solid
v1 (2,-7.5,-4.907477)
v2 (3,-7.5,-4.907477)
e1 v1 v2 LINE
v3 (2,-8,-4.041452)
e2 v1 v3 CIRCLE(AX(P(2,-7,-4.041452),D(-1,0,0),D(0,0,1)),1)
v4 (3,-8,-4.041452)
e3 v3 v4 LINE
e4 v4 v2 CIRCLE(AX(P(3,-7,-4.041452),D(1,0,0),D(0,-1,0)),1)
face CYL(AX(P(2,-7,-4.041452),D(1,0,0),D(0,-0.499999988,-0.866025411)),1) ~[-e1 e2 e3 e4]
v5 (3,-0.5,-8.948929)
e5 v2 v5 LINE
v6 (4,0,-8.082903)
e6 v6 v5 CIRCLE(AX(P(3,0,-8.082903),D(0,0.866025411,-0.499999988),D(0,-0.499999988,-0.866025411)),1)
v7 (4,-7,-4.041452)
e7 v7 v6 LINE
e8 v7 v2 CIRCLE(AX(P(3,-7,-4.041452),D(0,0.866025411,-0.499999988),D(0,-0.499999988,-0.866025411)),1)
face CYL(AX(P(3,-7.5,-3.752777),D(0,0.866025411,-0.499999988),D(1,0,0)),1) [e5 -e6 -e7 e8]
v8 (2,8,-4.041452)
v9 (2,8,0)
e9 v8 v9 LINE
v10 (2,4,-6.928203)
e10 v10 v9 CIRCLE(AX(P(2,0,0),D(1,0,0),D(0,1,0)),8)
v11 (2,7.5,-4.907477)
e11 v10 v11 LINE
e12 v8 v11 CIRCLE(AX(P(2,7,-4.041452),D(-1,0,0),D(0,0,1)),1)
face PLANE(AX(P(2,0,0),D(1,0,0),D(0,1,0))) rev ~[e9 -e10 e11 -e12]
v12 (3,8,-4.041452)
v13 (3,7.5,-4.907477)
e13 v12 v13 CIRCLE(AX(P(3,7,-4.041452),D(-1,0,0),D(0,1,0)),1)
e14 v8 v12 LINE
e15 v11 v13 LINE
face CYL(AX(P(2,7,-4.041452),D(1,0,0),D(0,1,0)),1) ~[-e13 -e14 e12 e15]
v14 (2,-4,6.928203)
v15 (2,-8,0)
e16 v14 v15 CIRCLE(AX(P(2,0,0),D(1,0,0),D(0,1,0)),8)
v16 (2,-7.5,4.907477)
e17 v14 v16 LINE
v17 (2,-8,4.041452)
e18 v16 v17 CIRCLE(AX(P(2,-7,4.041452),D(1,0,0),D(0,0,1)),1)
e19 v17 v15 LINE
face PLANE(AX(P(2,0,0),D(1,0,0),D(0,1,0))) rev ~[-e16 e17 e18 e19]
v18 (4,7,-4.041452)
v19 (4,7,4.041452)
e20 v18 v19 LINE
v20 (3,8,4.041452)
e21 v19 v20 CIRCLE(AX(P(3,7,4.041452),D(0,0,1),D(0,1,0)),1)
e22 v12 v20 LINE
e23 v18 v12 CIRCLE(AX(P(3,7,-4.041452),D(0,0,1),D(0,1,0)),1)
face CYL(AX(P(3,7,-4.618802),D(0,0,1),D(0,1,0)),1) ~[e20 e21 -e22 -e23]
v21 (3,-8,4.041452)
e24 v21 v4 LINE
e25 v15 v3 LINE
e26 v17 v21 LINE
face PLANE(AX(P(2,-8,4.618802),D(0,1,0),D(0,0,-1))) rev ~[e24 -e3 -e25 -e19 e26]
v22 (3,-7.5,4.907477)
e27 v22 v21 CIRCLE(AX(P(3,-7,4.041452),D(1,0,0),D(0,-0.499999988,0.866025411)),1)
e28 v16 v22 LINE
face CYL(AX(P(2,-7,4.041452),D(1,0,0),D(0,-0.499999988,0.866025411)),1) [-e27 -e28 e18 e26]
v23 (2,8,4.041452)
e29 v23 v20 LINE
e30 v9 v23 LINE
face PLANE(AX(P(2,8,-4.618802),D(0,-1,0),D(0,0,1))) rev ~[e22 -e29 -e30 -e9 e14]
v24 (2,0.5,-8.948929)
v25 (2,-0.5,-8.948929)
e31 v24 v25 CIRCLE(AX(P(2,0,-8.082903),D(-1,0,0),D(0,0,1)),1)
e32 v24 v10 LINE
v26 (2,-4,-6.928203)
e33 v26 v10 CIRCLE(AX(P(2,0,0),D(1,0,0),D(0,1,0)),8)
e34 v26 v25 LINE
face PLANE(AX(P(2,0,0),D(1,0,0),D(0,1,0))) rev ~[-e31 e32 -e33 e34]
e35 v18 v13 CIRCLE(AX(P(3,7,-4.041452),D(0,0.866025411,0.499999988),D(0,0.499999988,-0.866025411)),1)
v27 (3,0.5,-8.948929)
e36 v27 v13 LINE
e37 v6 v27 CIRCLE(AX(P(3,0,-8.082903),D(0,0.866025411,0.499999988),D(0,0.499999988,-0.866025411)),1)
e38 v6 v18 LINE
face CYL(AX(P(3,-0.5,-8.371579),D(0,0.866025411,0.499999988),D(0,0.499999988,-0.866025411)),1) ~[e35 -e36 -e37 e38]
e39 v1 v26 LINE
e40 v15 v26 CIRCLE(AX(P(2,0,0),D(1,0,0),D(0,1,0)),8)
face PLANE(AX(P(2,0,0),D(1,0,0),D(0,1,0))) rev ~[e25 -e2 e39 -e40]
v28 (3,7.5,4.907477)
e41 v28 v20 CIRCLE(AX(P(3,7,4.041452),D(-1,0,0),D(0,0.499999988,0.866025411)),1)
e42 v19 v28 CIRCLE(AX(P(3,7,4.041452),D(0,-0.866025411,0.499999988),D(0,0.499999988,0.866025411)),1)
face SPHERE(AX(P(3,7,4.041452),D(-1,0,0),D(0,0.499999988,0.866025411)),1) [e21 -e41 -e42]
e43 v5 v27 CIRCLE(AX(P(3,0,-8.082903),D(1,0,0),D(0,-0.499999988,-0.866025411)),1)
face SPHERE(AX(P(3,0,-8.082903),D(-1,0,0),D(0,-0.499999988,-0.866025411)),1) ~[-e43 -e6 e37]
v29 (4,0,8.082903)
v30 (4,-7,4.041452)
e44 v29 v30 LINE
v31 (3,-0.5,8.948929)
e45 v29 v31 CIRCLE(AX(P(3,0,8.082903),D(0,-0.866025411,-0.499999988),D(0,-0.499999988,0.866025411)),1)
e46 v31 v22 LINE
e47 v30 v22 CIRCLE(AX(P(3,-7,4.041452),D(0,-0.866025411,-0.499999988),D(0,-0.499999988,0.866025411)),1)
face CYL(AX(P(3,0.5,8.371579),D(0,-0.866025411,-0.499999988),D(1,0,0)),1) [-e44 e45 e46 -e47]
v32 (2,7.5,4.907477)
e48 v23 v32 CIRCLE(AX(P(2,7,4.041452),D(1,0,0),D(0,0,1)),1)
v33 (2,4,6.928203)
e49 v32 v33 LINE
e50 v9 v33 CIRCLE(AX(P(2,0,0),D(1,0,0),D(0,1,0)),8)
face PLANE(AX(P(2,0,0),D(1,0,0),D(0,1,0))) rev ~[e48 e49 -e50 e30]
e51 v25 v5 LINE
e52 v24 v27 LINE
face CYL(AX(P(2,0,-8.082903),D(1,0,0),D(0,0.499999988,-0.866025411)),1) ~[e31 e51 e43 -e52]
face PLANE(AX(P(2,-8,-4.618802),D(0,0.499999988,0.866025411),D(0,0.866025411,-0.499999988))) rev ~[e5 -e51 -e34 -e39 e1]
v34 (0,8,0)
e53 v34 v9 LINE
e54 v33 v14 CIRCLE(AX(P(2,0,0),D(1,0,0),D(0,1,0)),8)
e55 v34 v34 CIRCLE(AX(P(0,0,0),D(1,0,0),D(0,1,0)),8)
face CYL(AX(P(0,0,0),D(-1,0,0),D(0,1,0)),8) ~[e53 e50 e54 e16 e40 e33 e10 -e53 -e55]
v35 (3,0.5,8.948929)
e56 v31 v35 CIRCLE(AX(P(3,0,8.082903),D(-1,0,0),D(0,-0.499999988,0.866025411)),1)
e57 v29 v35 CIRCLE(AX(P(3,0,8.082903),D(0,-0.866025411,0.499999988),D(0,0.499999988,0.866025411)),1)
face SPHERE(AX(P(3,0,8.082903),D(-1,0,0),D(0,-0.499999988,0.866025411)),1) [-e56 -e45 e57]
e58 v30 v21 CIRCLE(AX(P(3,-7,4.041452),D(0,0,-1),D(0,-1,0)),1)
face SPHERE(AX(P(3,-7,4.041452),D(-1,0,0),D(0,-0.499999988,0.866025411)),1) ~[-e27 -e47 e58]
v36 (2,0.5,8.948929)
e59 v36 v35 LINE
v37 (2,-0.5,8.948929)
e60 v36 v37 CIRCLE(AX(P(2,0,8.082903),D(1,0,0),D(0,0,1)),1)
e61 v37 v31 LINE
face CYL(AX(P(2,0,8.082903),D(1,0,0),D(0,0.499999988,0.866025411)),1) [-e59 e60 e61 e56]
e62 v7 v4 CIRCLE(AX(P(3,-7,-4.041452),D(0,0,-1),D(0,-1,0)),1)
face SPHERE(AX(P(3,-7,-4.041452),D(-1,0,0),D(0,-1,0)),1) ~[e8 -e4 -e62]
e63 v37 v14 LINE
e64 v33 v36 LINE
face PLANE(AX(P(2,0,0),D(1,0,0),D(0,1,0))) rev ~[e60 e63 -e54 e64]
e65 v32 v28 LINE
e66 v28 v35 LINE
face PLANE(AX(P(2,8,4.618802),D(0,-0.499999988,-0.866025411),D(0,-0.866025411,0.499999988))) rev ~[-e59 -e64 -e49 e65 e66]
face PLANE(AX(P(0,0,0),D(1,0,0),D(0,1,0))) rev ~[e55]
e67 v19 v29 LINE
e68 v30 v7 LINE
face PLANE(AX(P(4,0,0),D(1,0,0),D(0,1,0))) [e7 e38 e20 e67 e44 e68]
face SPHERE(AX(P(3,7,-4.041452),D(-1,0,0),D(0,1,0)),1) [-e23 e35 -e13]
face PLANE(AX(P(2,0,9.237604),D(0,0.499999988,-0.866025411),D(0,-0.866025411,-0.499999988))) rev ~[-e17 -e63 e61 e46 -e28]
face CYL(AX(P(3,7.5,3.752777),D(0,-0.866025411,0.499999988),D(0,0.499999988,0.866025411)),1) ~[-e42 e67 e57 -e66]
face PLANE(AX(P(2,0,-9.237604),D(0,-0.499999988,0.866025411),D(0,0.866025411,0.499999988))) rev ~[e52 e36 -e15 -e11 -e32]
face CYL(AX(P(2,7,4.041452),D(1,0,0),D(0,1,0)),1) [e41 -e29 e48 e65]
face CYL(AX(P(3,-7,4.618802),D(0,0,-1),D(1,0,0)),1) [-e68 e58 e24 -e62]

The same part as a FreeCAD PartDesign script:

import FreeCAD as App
import Part
import Sketcher
Q = App.Units.Quantity


def edges_at(feature, points):
    """Names of the edges that pass closest to the given points."""
    edges = feature.Shape.Edges
    near = lambda p: min(range(len(edges)), key=lambda i: edges[i].distToShape(Part.Vertex(*p))[0])
    return sorted({f"Edge{near(p) + 1}" for p in points})

doc = App.newDocument("Part")
params = doc.addObject("Spreadsheet::Sheet", "Params")
for row, (alias, value) in enumerate([
    ("sketch1_diameter", "16 mm"),
    ("pad1_length", "2 mm"),
    ("pad2_length", "2 mm"),
    ("fillet_radius", "1 mm"),
], start=1):
    params.set(f"A{row}", alias)
    params.set(f"B{row}", "=" + value)
    params.setAlias(f"B{row}", alias)

body = doc.addObject("PartDesign::Body", "Body")

sketch1 = body.newObject("Sketcher::SketchObject", "Sketch")
sketch1.AttachmentSupport = (doc.getObject("YZ_Plane"), [""])
sketch1.MapMode = "FlatFace"
sketch1.addGeometry(Part.Circle(App.Vector(0, 0, 0), App.Vector(0, 0, 1), 8), False)
sketch1.addConstraint([
    Sketcher.Constraint("Coincident", 0, 3, -1, 1),
    Sketcher.Constraint("Diameter", 0, 16.0),
])
sketch1.setExpression("Constraints[1]", "Params.sketch1_diameter")
pad1 = body.newObject("PartDesign::Pad", "Pad")
pad1.Profile = sketch1
pad1.setExpression("Length", "Params.pad1_length")

sketch2 = body.newObject("Sketcher::SketchObject", "Sketch001")
sketch2.AttachmentSupport = (doc.getObject("YZ_Plane"), [""])
sketch2.MapMode = "FlatFace"
sketch2.AttachmentOffset = App.Placement(App.Vector(0, 0, 2), App.Rotation())
sketch2.addGeometry([
    Part.LineSegment(App.Vector(8, -5, 0), App.Vector(8, 5, 0)),
    Part.LineSegment(App.Vector(8, 5, 0), App.Vector(0, 9, 0)),
    Part.LineSegment(App.Vector(0, 9, 0), App.Vector(-8, 5, 0)),
    Part.LineSegment(App.Vector(-8, 5, 0), App.Vector(-8, -5, 0)),
    Part.LineSegment(App.Vector(-8, -5, 0), App.Vector(0, -9, 0)),
    Part.LineSegment(App.Vector(0, -9, 0), App.Vector(8, -5, 0)),
], False)
sketch2.addConstraint([
    Sketcher.Constraint("Coincident", 0, 2, 1, 1),
    Sketcher.Constraint("Coincident", 1, 2, 2, 1),
    Sketcher.Constraint("Coincident", 2, 2, 3, 1),
    Sketcher.Constraint("Coincident", 3, 2, 4, 1),
    Sketcher.Constraint("Coincident", 4, 2, 5, 1),
    Sketcher.Constraint("Coincident", 5, 2, 0, 1),
    Sketcher.Constraint("Vertical", 0),
    Sketcher.Constraint("Vertical", 3),
    Sketcher.Constraint("Symmetric", 0, 2, 3, 2, -1, 1),
    Sketcher.Constraint("Symmetric", 1, 2, 4, 2, -1, 1),
    Sketcher.Constraint("PointOnObject", 1, 2, -2),
    Sketcher.Constraint("Parallel", 2, 5),
    Sketcher.Constraint("Horizontal", 0, 2, 2, 2),
    Sketcher.Constraint("Angle", 1, Q("150.000001 deg")),
    Sketcher.Constraint("DistanceX", -1, 1, 0, 2, 8.0),
    Sketcher.Constraint("DistanceY", -1, 1, 0, 2, 4.618802),
])
pad2 = body.newObject("PartDesign::Pad", "Pad001")
pad2.Profile = sketch2
pad2.setExpression("Length", "Params.pad2_length")
doc.recompute()

fillet = body.newObject("PartDesign::Fillet", "Fillet")
fillet.Base = (pad2, edges_at(pad2, [
    (3, 0, 9.238),
    (3, 8, 4.619),
    (3, 8, -4.619),
    (3, -8, 4.619),
    (3, -8, -4.619),
    (3, 0, -9.238),
    (4, -4, 6.928),
    (4, -8, 0),
    (4, -4, -6.928),
    (4, 4, 6.928),
    (4, 8, 0),
    (4, 4, -6.928),
]))
fillet.setExpression("Radius", "Params.fillet_radius")

doc.recompute()
